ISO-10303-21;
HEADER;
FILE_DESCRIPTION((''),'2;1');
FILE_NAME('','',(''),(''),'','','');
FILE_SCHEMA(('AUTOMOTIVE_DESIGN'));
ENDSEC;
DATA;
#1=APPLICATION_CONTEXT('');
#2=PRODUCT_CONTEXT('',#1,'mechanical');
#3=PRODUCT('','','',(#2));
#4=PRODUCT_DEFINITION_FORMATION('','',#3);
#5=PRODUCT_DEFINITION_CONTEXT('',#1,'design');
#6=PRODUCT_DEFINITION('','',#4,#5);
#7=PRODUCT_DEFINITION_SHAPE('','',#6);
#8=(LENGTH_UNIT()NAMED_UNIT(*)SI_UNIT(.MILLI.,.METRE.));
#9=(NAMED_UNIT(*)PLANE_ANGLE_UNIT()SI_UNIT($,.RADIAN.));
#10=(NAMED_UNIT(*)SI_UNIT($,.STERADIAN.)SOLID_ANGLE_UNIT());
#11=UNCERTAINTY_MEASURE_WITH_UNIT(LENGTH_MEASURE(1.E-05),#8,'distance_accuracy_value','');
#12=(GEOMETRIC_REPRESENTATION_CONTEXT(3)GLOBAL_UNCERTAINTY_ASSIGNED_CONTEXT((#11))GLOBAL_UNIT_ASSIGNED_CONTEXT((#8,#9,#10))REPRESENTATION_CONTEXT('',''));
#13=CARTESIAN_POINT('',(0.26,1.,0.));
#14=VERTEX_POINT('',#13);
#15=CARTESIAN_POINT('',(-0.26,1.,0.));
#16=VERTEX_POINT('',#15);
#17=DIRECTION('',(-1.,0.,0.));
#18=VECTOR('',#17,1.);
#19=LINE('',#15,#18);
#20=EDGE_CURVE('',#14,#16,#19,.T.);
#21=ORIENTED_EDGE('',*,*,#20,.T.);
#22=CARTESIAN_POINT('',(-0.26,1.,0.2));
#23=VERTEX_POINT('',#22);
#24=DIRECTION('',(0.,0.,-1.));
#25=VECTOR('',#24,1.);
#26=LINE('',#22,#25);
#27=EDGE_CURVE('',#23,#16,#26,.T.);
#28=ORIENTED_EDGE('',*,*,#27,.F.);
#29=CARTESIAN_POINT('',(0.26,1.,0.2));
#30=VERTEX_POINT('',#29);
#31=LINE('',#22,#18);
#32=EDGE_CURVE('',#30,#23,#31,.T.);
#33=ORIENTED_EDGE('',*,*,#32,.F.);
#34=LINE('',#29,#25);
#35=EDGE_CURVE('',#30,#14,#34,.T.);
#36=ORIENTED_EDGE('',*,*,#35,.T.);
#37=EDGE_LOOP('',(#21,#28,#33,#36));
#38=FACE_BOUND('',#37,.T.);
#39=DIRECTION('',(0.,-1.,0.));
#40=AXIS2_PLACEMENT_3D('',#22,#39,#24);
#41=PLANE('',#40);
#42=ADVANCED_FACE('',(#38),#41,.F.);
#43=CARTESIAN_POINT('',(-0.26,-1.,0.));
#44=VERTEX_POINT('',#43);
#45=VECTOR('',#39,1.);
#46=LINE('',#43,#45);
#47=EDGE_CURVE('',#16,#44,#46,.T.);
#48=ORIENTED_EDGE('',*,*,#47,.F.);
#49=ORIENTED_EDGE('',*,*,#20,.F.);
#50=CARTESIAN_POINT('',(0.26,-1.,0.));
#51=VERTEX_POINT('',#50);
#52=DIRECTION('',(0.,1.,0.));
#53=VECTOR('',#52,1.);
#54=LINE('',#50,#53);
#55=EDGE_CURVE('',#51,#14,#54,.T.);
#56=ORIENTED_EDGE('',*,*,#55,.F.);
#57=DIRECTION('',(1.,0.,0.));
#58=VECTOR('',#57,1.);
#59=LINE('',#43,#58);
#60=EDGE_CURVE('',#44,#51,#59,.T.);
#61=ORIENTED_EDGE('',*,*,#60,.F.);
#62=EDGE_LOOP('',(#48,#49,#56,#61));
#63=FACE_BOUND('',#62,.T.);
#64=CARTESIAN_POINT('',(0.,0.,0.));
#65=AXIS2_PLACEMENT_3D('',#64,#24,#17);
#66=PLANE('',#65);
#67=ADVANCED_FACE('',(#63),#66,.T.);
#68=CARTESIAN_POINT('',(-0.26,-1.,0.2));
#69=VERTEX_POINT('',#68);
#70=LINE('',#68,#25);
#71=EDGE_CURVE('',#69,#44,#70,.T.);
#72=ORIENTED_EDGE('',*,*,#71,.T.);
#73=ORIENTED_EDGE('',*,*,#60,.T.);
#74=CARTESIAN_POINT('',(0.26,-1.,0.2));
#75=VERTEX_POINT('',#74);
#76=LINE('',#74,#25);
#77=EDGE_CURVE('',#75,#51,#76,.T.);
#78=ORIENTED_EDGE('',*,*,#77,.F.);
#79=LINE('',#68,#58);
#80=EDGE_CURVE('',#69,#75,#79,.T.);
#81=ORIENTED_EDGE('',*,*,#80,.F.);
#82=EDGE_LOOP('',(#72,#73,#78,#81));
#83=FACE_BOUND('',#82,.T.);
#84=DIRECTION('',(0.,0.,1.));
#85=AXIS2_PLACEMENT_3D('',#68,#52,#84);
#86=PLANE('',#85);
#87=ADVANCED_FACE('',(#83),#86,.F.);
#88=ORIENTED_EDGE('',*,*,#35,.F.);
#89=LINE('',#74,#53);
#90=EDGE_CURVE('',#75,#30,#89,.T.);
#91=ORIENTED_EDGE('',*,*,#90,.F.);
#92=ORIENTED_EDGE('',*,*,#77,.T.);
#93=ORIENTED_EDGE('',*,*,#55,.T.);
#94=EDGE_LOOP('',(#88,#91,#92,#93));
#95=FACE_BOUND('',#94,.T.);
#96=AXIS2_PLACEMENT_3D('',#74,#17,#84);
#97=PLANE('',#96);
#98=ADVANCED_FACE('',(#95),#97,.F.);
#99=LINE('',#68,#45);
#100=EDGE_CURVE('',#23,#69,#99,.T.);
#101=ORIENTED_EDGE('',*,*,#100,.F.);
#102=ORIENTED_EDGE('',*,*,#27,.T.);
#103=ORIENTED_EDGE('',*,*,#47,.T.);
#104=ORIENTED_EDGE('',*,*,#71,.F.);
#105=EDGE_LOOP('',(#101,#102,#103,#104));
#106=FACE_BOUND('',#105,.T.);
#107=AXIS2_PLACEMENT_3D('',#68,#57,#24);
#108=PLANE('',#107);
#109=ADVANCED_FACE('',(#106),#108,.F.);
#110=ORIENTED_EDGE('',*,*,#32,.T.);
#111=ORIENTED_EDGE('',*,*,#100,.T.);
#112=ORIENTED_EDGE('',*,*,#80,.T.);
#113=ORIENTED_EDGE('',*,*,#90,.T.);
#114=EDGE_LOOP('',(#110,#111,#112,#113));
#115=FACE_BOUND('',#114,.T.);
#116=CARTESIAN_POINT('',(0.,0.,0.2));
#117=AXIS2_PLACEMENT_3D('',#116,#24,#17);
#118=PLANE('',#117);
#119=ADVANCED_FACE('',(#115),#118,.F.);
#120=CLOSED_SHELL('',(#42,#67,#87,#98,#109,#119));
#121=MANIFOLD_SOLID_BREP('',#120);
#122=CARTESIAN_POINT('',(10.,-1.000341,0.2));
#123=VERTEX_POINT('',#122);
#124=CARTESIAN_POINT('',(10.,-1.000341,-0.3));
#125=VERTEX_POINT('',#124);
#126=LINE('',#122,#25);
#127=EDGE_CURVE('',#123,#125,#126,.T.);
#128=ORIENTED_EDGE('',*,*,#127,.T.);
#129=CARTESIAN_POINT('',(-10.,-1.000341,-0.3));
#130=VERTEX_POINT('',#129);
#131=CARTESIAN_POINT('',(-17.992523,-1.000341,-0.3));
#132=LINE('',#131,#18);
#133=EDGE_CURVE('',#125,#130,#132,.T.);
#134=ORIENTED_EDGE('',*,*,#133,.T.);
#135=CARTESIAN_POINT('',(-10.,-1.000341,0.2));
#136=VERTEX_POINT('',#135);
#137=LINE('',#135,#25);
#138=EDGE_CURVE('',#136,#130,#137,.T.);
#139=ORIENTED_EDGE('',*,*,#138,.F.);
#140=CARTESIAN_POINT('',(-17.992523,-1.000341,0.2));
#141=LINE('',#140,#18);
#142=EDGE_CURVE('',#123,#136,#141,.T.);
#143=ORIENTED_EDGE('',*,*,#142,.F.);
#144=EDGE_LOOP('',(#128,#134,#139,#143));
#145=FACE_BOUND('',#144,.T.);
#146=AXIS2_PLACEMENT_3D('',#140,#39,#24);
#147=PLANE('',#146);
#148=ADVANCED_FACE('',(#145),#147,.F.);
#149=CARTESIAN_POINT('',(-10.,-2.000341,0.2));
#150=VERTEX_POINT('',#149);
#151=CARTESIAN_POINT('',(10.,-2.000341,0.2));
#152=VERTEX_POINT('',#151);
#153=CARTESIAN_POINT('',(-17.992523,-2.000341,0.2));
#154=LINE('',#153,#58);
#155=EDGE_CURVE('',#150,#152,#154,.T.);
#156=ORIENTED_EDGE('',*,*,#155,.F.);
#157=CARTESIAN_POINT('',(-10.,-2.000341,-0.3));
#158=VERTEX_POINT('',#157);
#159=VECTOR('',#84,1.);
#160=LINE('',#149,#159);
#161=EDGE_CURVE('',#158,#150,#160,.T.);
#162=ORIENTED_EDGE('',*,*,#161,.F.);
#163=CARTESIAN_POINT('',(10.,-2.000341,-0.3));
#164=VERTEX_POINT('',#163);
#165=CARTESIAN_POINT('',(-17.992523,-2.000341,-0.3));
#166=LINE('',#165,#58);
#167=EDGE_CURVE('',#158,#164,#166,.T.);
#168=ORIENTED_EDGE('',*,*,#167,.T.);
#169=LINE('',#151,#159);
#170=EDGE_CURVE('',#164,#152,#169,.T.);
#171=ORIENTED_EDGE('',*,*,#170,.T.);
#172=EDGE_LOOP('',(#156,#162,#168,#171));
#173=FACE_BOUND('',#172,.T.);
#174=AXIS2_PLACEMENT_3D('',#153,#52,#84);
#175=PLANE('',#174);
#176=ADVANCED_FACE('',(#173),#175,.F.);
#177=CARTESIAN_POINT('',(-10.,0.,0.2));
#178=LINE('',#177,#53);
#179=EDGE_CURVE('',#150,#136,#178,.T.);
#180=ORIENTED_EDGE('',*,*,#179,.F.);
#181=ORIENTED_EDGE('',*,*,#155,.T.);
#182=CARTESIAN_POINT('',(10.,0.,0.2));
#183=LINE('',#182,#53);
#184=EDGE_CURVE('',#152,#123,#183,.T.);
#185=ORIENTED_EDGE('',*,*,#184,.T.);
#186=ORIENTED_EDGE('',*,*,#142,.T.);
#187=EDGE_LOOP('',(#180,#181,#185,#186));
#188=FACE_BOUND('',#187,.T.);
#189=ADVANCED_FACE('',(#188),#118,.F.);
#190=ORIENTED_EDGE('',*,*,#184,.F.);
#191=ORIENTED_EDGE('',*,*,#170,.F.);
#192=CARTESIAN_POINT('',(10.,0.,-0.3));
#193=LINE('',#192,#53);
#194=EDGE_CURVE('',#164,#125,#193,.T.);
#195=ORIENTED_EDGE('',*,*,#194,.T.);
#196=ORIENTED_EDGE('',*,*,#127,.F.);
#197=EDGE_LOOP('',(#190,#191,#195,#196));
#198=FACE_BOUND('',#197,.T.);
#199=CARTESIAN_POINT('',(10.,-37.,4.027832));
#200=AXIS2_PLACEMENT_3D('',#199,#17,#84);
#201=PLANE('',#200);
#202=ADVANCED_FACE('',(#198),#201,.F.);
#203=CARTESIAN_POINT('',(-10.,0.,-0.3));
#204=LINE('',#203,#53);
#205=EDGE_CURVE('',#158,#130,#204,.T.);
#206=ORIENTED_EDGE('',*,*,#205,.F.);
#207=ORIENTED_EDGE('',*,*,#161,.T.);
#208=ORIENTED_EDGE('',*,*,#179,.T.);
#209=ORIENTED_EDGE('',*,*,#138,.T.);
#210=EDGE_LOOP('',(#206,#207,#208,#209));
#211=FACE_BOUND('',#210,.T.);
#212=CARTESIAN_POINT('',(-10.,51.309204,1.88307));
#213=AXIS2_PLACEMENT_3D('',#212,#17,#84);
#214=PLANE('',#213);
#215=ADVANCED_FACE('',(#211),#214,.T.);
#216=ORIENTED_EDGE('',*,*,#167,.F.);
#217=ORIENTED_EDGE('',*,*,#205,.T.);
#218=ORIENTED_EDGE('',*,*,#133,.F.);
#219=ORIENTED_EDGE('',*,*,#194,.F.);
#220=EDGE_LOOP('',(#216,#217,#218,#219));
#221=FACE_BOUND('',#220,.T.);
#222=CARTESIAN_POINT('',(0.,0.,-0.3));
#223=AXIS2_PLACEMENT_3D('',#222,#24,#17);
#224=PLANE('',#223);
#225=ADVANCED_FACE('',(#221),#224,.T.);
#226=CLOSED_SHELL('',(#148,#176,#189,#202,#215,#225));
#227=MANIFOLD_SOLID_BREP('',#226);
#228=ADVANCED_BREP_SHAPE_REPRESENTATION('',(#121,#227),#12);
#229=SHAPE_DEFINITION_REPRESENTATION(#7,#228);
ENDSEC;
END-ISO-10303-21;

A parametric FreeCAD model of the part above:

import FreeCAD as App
import Part
import Sketcher
from FreeCAD import Vector
Q = App.Units.Quantity

doc = App.newDocument("Part")
body = doc.addObject("PartDesign::Body", "Body")

# Sketch on XY plane
sketch1 = body.newObject("Sketcher::SketchObject", "Sketch")
sketch1.AttachmentSupport = (doc.getObject("XY_Plane"), [""])
sketch1.MapMode = "FlatFace"
sketch1.addGeometry([
    Part.LineSegment(Vector(-0.3, 1, 0), Vector(-0.3, -1, 0)),
    Part.LineSegment(Vector(-0.3, -1, 0), Vector(0.3, -1, 0)),
    Part.LineSegment(Vector(0.3, -1, 0), Vector(0.3, 1, 0)),
    Part.LineSegment(Vector(0.3, 1, 0), Vector(-0.3, 1, 0)),
], False)
sketch1.addConstraint([
    Sketcher.Constraint("Coincident", 0, 2, 1, 1),
    Sketcher.Constraint("Coincident", 1, 2, 2, 1),
    Sketcher.Constraint("Coincident", 2, 2, 3, 1),
    Sketcher.Constraint("Coincident", 3, 2, 0, 1),
    Sketcher.Constraint("Vertical", 0),
    Sketcher.Constraint("Horizontal", 1),
    Sketcher.Constraint("Vertical", 2),
    Sketcher.Constraint("Horizontal", 3),
    Sketcher.Constraint("Symmetric", 0, 2, 2, 2, -1, 1),
    Sketcher.Constraint("DistanceY", 0, 2, 0, 1, Q("2 mm")),
    Sketcher.Constraint("DistanceX", 1, 1, 1, 2, Q("0.52 mm")),
])
pad1 = body.newObject("PartDesign::Pad", "Pad")
pad1.Profile = sketch1
pad1.Length = 0.2
body2 = doc.addObject("PartDesign::Body", "Body001")

# Sketch on XY plane
sketch2 = body2.newObject("Sketcher::SketchObject", "Sketch001")
sketch2.AttachmentSupport = (doc.getObject("XY_Plane001"), [""])
sketch2.MapMode = "FlatFace"
sketch2.addGeometry([
    Part.LineSegment(Vector(-18, -1, 0), Vector(-18, -2, 0)),
    Part.LineSegment(Vector(-18, -2, 0), Vector(18, -2, 0)),
    Part.LineSegment(Vector(18, -2, 0), Vector(18, -1, 0)),
    Part.LineSegment(Vector(18, -1, 0), Vector(-18, -1, 0)),
], False)
sketch2.addConstraint([
    Sketcher.Constraint("Coincident", 0, 2, 1, 1),
    Sketcher.Constraint("Coincident", 1, 2, 2, 1),
    Sketcher.Constraint("Coincident", 2, 2, 3, 1),
    Sketcher.Constraint("Coincident", 3, 2, 0, 1),
    Sketcher.Constraint("Vertical", 0),
    Sketcher.Constraint("Horizontal", 1),
    Sketcher.Constraint("Vertical", 2),
    Sketcher.Constraint("Horizontal", 3),
    Sketcher.Constraint("DistanceX", 1, 1, 1, 2, Q("36 mm")),
    Sketcher.Constraint("DistanceY", 0, 2, 0, 1, Q("1 mm")),
    Sketcher.Constraint("DistanceY", 0, 2, -1, 1, Q("2.000341 mm")),
    Sketcher.Constraint("DistanceX", 0, 2, -1, 1, Q("17.992522 mm")),
])
pad2 = body2.newObject("PartDesign::Pad", "Pad001")
pad2.Profile = sketch2
pad2.Type = "TwoLengths"
pad2.Length = 0.2
pad2.Length2 = 0.3

# Sketch on XZ plane
sketch3 = body2.newObject("Sketcher::SketchObject", "Sketch002")
sketch3.AttachmentSupport = (doc.getObject("XZ_Plane001"), [""])
sketch3.MapMode = "FlatFace"
sketch3.AttachmentOffset = App.Placement(Vector(0, 0, 1.000341), App.Rotation())
sketch3.addGeometry([
    Part.Circle(Vector(-17, -1, 0), Vector(0, 0, 1), 2),
    Part.Circle(Vector(17, -1.1, 0), Vector(0, 0, 1), 2),
], False)
sketch3.addConstraint([
    Sketcher.Constraint("Equal", 0, 1),
    Sketcher.Constraint("Diameter", 0, Q("4 mm")),
    Sketcher.Constraint("DistanceY", 1, 3, -1, 1, Q("1.05 mm")),
    Sketcher.Constraint("DistanceX", 0, 3, -1, 1, Q("16.989069 mm")),
    Sketcher.Constraint("DistanceY", 0, 3, -1, 1, Q("1.047709 mm")),
    Sketcher.Constraint("DistanceX", -1, 1, 1, 3, Q("17.007478 mm")),
])
pad3 = body2.newObject("PartDesign::Pad", "Pad002")
pad3.Profile = sketch3
pad3.Length = 10

# Sketch on XZ plane
sketch4 = body2.newObject("Sketcher::SketchObject", "Sketch003")
sketch4.AttachmentSupport = (doc.getObject("XZ_Plane001"), [""])
sketch4.MapMode = "FlatFace"
sketch4.addGeometry([
    Part.LineSegment(Vector(-10, 71, 0), Vector(-10, -73, 0)),
    Part.LineSegment(Vector(-10, -73, 0), Vector(-148, -73, 0)),
    Part.LineSegment(Vector(-148, -73, 0), Vector(-148, 71, 0)),
    Part.LineSegment(Vector(-148, 71, 0), Vector(-10, 71, 0)),
], False)
sketch4.addConstraint([
    Sketcher.Constraint("Coincident", 0, 2, 1, 1),
    Sketcher.Constraint("Coincident", 1, 2, 2, 1),
    Sketcher.Constraint("Coincident", 2, 2, 3, 1),
    Sketcher.Constraint("Coincident", 3, 2, 0, 1),
    Sketcher.Constraint("Vertical", 0),
    Sketcher.Constraint("Horizontal", 1),
    Sketcher.Constraint("Vertical", 2),
    Sketcher.Constraint("Horizontal", 3),
    Sketcher.Constraint("DistanceX", 0, 2, -1, 1, Q("10 mm")),
    Sketcher.Constraint("DistanceX", 1, 2, 1, 1, Q("137.695807 mm")),
    Sketcher.Constraint("DistanceY", 0, 2, 0, 1, Q("143.473123 mm")),
    Sketcher.Constraint("DistanceY", 0, 2, -1, 1, Q("72.74215 mm")),
])
pocket1 = body2.newObject("PartDesign::Pocket", "Pocket")
pocket1.Profile = sketch4
pocket1.Type = "ThroughAll"
pocket1.Midplane = True

# Sketch on XZ plane
sketch5 = body2.newObject("Sketcher::SketchObject", "Sketch004")
sketch5.AttachmentSupport = (doc.getObject("XZ_Plane001"), [""])
sketch5.MapMode = "FlatFace"
sketch5.addGeometry([
    Part.LineSegment(Vector(10, -8, 0), Vector(10, 4, 0)),
    Part.LineSegment(Vector(10, 4, 0), Vector(22, 4, 0)),
    Part.LineSegment(Vector(22, 4, 0), Vector(22, -8, 0)),
    Part.LineSegment(Vector(22, -8, 0), Vector(10, -8, 0)),
], False)
sketch5.addConstraint([
    Sketcher.Constraint("Coincident", 0, 2, 1, 1),
    Sketcher.Constraint("Coincident", 1, 2, 2, 1),
    Sketcher.Constraint("Coincident", 2, 2, 3, 1),
    Sketcher.Constraint("Coincident", 3, 2, 0, 1),
    Sketcher.Constraint("Vertical", 0),
    Sketcher.Constraint("Horizontal", 1),
    Sketcher.Constraint("Vertical", 2),
    Sketcher.Constraint("Horizontal", 3),
    Sketcher.Constraint("DistanceX", -1, 1, 0, 2, Q("10 mm")),
    Sketcher.Constraint("DistanceX", 1, 1, 1, 2, Q("11.789249 mm")),
    Sketcher.Constraint("DistanceY", 0, 1, 0, 2, Q("12.137764 mm")),
    Sketcher.Constraint("DistanceY", -1, 1, 0, 2, Q("4.027832 mm")),
])
pocket2 = body2.newObject("PartDesign::Pocket", "Pocket001")
pocket2.Profile = sketch5
pocket2.Length = 37
pocket2.Reversed = True

doc.recompute()
